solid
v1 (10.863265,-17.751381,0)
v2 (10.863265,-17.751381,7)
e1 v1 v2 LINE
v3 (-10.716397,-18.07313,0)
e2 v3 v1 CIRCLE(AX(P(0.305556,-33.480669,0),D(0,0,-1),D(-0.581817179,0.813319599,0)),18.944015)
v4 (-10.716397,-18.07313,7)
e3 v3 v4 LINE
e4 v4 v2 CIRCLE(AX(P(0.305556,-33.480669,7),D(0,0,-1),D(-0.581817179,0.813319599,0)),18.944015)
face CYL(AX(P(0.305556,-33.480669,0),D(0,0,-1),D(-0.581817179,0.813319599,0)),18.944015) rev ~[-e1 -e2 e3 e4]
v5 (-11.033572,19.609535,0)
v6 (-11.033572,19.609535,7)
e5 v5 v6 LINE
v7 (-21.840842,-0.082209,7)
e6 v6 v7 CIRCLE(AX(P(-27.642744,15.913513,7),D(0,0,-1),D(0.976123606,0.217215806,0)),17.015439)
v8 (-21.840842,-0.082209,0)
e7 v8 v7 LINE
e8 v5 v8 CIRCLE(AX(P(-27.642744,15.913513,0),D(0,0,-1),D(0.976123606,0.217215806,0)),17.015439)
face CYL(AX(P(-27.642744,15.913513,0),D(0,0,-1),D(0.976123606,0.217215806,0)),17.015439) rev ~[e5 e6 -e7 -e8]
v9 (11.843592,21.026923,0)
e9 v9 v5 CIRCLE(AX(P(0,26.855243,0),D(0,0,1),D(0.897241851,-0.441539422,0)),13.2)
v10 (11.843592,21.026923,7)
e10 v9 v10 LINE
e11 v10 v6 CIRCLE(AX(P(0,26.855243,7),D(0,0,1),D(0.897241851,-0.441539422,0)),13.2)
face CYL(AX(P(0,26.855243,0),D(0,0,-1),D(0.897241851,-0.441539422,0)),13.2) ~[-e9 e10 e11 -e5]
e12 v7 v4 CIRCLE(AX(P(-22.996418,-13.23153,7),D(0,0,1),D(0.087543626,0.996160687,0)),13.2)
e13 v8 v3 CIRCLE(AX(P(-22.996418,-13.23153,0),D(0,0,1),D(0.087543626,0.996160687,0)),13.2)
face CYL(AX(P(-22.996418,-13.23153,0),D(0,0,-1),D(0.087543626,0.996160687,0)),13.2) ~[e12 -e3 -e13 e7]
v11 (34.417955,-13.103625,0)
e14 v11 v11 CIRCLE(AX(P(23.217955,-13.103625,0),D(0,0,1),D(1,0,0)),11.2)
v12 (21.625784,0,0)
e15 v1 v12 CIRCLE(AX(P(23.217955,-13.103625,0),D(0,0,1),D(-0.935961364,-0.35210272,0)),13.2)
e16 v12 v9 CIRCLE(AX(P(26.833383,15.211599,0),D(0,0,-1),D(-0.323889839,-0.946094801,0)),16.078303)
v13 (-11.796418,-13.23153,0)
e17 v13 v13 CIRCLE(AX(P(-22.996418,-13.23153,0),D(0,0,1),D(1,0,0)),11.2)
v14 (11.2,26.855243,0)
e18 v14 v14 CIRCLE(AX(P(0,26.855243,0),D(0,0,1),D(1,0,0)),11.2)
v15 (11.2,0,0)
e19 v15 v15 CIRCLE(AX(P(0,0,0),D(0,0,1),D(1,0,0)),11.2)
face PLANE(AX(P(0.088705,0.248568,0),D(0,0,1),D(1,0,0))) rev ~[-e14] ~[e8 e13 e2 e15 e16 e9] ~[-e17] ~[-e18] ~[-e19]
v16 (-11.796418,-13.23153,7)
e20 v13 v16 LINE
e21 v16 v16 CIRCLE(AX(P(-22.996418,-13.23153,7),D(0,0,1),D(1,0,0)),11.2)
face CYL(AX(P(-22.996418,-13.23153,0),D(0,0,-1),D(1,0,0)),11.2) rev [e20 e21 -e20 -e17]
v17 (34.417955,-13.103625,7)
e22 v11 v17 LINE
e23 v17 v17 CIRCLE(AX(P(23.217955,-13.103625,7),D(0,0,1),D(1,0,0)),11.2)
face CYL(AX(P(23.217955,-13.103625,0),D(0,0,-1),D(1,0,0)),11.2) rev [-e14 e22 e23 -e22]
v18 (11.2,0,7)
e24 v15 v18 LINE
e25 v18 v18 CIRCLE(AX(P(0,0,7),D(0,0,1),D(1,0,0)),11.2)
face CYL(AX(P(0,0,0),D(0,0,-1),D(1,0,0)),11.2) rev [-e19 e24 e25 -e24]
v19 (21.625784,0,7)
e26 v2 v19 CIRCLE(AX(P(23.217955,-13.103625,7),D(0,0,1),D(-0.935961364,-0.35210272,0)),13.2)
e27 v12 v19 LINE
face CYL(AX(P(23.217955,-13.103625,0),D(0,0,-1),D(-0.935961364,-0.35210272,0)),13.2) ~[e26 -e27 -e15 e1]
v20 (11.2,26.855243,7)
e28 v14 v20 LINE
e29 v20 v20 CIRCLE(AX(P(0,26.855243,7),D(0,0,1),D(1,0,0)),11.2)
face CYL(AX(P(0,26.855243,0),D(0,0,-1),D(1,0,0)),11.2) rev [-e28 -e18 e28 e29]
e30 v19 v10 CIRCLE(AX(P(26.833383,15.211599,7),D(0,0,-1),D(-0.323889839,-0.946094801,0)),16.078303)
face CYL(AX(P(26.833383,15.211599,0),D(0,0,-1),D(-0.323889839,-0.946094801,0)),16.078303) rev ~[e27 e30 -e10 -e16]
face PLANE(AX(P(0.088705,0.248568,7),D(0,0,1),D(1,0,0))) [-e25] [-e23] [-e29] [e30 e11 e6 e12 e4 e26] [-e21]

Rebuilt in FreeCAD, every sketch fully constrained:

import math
import FreeCAD as App
import Part
import Sketcher
Q = App.Units.Quantity

doc = App.newDocument("Part")
params = doc.addObject("Spreadsheet::Sheet", "Params")
for row, (alias, value) in enumerate([
    ("sketch1_diameter", "22.4 mm"),
    ("sketch1_radius", "13.2 mm"),
    ("pad1_length", "7 mm"),
], start=1):
    params.set(f"A{row}", alias)
    params.set(f"B{row}", "=" + value)
    params.setAlias(f"B{row}", alias)

body = doc.addObject("PartDesign::Body", "Body")

sketch1 = doc.addObject("Sketcher::SketchObject", "Sketch")
body.addObject(sketch1)
sketch1.AttachmentSupport = (doc.XY_Plane, [""])
sketch1.MapMode = "FlatFace"
sketch1.addGeometry([
    Part.ArcOfCircle(Part.Circle(App.Vector(27, 15, 0), App.Vector(0, 0, 1), 16), math.radians(159), math.radians(251)),
    Part.ArcOfCircle(Part.Circle(App.Vector(0, 27, 0), App.Vector(0, 0, 1), 13), math.radians(-26), math.radians(213)),
    Part.ArcOfCircle(Part.Circle(App.Vector(-28, 16, 0), App.Vector(0, 0, 1), 17), math.radians(-70), math.radians(13)),
    Part.ArcOfCircle(Part.Circle(App.Vector(-23, -13, 0), App.Vector(0, 0, 1), 13), math.radians(85), math.radians(338)),
    Part.ArcOfCircle(Part.Circle(App.Vector(0, -33, 0), App.Vector(0, 0, 1), 19), math.radians(56), math.radians(126)),
    Part.ArcOfCircle(Part.Circle(App.Vector(23, -13, 0), App.Vector(0, 0, 1), 13), math.radians(-159), math.radians(97)),
    Part.Circle(App.Vector(-23, -13, 0), App.Vector(0, 0, 1), 11),
    Part.Circle(App.Vector(0, 0, 0), App.Vector(0, 0, 1), 11),
    Part.Circle(App.Vector(23, -13, 0), App.Vector(0, 0, 1), 11),
    Part.Circle(App.Vector(0, 27, 0), App.Vector(0, 0, 1), 11),
], False)
sketch1.addConstraint([
    Sketcher.Constraint("Coincident", 0, 1, 1, 1),
    Sketcher.Constraint("Coincident", 1, 2, 2, 2),
    Sketcher.Constraint("Coincident", 2, 1, 3, 1),
    Sketcher.Constraint("Coincident", 3, 2, 4, 2),
    Sketcher.Constraint("Coincident", 4, 1, 5, 1),
    Sketcher.Constraint("Coincident", 5, 2, 0, 2),
    Sketcher.Constraint("Coincident", 7, 3, -1, 1),
    Sketcher.Constraint("Coincident", 6, 3, 3, 3),
    Sketcher.Constraint("Coincident", 8, 3, 5, 3),
    Sketcher.Constraint("Coincident", 9, 3, 1, 3),
    Sketcher.Constraint("Equal", 1, 3),
    Sketcher.Constraint("Equal", 3, 5),
    Sketcher.Constraint("Equal", 6, 7),
    Sketcher.Constraint("Equal", 7, 8),
    Sketcher.Constraint("Equal", 8, 9),
    Sketcher.Constraint("PointOnObject", 1, 3, -2),
    Sketcher.Constraint("PointOnObject", 5, 2, -1),
    Sketcher.Constraint("Diameter", 6, Q("22.4 mm")),
    Sketcher.Constraint("Radius", 1, Q("13.2 mm")),
    Sketcher.Constraint("Radius", 2, Q("17.015439 mm")),
    Sketcher.Constraint("Radius", 0, Q("16.078303 mm")),
    Sketcher.Constraint("Radius", 4, Q("18.944015 mm")),
    Sketcher.Constraint("DistanceY", -1, 1, 0, 3, Q("15.211599 mm")),
    Sketcher.Constraint("DistanceX", 3, 3, 0, 3, Q("49.829801 mm")),
    Sketcher.Constraint("DistanceX", 2, 3, 4, 3, Q("27.9483 mm")),
    Sketcher.Constraint("DistanceX", 4, 3, 5, 3, Q("22.912399 mm")),
    Sketcher.Constraint("DistanceY", 3, 2, 3, 3, Q("4.8416 mm")),
    Sketcher.Constraint("DistanceY", 3, 3, -1, 1, Q("13.23153 mm")),
    Sketcher.Constraint("DistanceY", 4, 3, -1, 1, Q("33.480669 mm")),
    Sketcher.Constraint("DistanceX", 1, 2, -1, 1, Q("11.033572 mm")),
    Sketcher.Constraint("DistanceY", 2, 1, -1, 1, Q("0.082209 mm")),
    Sketcher.Constraint("DistanceY", 2, 3, 1, 3, Q("10.941731 mm")),
])
sketch1.setExpression("Constraints[17]", "Params.sketch1_diameter")
sketch1.setExpression("Constraints[18]", "Params.sketch1_radius")
pad1 = doc.addObject("PartDesign::Pad", "Pad")
body.addObject(pad1)
pad1.Profile = sketch1
pad1.setExpression("Length", "Params.pad1_length")

doc.recompute()
